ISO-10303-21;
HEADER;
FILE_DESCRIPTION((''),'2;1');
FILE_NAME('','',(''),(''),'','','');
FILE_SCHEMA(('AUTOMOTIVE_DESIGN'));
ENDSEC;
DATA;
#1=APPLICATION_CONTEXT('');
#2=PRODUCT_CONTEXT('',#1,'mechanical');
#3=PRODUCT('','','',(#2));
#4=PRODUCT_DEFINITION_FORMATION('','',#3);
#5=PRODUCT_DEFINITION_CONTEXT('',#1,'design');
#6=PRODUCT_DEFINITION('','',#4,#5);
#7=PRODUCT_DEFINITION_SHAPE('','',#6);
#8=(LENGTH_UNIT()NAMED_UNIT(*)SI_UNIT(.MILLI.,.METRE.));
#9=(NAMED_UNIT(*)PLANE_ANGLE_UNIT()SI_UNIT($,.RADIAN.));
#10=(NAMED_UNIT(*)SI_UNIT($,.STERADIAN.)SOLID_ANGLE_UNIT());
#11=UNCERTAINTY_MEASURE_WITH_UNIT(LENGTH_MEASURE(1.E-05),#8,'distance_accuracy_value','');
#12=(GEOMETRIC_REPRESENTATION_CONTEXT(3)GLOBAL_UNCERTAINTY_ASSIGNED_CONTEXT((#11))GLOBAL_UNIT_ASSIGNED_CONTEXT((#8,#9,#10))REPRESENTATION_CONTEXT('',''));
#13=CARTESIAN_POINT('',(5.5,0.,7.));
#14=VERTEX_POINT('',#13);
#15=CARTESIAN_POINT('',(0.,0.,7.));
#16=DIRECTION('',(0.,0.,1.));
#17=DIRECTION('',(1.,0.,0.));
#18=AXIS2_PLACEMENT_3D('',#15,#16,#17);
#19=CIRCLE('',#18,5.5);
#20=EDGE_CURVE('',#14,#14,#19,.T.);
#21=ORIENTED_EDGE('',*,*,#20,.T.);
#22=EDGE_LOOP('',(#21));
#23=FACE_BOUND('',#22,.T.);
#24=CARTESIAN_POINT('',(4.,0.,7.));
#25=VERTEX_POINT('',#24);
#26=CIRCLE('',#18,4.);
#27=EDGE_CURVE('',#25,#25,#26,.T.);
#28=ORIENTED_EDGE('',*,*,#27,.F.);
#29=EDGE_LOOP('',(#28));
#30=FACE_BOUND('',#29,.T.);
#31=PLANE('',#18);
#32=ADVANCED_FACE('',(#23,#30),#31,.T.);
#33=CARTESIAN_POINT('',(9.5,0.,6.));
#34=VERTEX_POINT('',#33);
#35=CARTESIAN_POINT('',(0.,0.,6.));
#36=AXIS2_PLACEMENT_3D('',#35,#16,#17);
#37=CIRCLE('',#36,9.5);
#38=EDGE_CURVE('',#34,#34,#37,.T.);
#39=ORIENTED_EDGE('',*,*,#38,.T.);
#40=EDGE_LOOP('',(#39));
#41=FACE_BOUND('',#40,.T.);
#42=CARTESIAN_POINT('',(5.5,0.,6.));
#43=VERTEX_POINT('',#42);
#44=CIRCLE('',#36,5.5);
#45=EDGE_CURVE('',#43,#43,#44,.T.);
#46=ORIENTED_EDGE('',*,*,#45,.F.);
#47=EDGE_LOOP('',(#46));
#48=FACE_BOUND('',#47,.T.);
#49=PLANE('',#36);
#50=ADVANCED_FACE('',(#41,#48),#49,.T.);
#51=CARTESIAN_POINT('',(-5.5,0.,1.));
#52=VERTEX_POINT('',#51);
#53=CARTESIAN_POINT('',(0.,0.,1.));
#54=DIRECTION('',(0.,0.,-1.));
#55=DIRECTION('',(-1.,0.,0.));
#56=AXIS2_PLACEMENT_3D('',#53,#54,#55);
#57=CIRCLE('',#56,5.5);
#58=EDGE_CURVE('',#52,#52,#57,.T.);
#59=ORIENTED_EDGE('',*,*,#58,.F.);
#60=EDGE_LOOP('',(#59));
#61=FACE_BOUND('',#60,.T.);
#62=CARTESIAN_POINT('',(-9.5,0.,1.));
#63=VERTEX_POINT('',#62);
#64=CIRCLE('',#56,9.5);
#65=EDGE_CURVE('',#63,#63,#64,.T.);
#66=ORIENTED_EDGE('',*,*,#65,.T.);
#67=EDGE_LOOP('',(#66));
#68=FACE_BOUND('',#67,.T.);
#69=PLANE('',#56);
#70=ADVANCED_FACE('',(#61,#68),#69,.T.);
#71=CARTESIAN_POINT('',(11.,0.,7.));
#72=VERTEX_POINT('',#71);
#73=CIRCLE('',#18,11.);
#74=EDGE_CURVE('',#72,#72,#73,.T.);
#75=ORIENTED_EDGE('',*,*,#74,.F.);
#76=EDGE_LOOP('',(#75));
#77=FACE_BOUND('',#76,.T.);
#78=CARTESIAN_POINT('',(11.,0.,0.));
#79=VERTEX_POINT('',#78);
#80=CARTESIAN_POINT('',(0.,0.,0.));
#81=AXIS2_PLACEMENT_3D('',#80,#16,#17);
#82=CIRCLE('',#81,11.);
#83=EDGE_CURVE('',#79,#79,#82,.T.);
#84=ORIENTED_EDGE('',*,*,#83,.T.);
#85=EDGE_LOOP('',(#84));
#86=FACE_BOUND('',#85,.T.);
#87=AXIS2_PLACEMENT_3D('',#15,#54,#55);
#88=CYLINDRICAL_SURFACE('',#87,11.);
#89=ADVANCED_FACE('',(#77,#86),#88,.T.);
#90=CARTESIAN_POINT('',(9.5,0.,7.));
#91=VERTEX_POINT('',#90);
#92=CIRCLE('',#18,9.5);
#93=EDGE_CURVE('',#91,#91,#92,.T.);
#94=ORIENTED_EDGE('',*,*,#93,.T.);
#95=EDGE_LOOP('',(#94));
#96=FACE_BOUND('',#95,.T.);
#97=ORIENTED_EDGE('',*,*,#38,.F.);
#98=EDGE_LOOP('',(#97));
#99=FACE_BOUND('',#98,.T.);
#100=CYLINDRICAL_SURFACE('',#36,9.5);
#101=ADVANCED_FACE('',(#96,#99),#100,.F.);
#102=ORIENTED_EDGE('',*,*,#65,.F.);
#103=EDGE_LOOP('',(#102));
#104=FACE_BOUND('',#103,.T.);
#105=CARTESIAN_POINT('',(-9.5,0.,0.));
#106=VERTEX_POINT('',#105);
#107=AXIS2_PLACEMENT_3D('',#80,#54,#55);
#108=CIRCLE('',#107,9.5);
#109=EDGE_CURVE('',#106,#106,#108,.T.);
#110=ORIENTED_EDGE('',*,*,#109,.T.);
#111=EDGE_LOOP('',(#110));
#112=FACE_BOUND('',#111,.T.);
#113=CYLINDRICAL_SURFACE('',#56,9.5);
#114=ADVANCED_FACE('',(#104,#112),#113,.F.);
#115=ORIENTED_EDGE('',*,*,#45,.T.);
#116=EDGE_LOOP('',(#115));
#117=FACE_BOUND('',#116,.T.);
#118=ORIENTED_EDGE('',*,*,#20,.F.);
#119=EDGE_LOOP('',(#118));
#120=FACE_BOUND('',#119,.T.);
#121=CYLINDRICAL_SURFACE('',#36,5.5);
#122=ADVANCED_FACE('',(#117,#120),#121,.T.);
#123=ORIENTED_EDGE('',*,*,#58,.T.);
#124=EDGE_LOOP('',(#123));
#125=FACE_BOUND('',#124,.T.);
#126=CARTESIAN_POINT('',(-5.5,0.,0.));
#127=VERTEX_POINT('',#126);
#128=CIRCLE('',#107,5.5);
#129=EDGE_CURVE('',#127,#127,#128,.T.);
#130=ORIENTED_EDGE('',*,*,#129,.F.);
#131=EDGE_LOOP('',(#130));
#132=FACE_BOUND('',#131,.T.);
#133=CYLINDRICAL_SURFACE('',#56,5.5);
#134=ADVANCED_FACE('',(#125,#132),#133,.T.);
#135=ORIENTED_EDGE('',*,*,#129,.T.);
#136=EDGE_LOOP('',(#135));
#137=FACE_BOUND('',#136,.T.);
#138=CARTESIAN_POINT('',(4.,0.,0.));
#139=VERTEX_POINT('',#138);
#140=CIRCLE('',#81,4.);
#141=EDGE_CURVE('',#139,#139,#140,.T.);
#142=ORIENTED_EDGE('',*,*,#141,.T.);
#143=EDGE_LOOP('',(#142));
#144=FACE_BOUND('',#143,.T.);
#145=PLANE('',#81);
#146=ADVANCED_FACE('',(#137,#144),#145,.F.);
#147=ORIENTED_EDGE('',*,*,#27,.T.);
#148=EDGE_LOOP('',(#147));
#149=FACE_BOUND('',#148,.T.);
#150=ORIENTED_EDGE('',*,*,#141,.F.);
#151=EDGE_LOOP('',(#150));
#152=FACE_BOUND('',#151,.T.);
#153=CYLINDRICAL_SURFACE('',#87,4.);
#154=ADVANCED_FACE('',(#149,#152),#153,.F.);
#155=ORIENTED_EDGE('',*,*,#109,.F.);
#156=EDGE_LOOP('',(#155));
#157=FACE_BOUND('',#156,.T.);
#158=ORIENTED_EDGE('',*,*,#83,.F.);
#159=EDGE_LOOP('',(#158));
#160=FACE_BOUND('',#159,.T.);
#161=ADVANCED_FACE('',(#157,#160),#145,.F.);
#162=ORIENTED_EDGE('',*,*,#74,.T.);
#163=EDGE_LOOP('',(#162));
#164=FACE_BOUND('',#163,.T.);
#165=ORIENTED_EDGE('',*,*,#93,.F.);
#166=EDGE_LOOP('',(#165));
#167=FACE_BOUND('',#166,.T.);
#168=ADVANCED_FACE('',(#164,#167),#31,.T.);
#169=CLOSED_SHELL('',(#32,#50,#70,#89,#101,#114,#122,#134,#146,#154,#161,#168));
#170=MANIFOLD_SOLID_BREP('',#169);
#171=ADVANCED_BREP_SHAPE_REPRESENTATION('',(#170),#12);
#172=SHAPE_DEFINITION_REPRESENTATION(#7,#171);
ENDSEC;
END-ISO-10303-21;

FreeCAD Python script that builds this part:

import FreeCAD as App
import Part
import Sketcher
from FreeCAD import Vector
Q = App.Units.Quantity

doc = App.newDocument("Part")
body = doc.addObject("PartDesign::Body", "Body")

# Sketch on XY plane
sketch1 = doc.addObject("Sketcher::SketchObject", "Sketch")
body.addObject(sketch1)
sketch1.AttachmentSupport = (doc.XY_Plane, [""])
sketch1.MapMode = "FlatFace"
sketch1.addGeometry([
    Part.Circle(Vector(0, 0, 0), Vector(0, 0, 1), 11),
    Part.Circle(Vector(0, 0, 0), Vector(0, 0, 1), 4),
], False)
sketch1.addConstraint([
    Sketcher.Constraint("Coincident", 0, 3, -1, 1),
    Sketcher.Constraint("Coincident", 1, 3, -1, 1),
    Sketcher.Constraint("Diameter", 0, Q("22 mm")),
    Sketcher.Constraint("Diameter", 1, Q("8 mm")),
])
pad1 = doc.addObject("PartDesign::Pad", "Pad")
body.addObject(pad1)
pad1.Profile = sketch1
pad1.Length = 7

# Sketch on XY plane
sketch2 = doc.addObject("Sketcher::SketchObject", "Sketch001")
body.addObject(sketch2)
sketch2.AttachmentSupport = (doc.XY_Plane, [""])
sketch2.MapMode = "FlatFace"
sketch2.AttachmentOffset = App.Placement(Vector(0, 0, 7), App.Rotation())
sketch2.addGeometry([
    Part.Circle(Vector(0, 0, 0), Vector(0, 0, 1), 10),
    Part.Circle(Vector(0, 0, 0), Vector(0, 0, 1), 6),
], False)
sketch2.addConstraint([
    Sketcher.Constraint("Coincident", 0, 3, -1, 1),
    Sketcher.Constraint("Coincident", 1, 3, -1, 1),
    Sketcher.Constraint("Diameter", 0, Q("19 mm")),
    Sketcher.Constraint("Diameter", 1, Q("11 mm")),
])
pocket1 = doc.addObject("PartDesign::Pocket", "Pocket")
body.addObject(pocket1)
pocket1.Profile = sketch2
pocket1.Length = 1

# Sketch on XY plane
sketch3 = doc.addObject("Sketcher::SketchObject", "Sketch002")
body.addObject(sketch3)
sketch3.AttachmentSupport = (doc.XY_Plane, [""])
sketch3.MapMode = "FlatFace"
sketch3.addGeometry([
    Part.Circle(Vector(0, 0, 0), Vector(0, 0, 1), 10),
    Part.Circle(Vector(0, 0, 0), Vector(0, 0, 1), 6),
], False)
sketch3.addConstraint([
    Sketcher.Constraint("Coincident", 0, 3, -1, 1),
    Sketcher.Constraint("Coincident", 1, 3, -1, 1),
    Sketcher.Constraint("Diameter", 0, Q("19 mm")),
    Sketcher.Constraint("Diameter", 1, Q("11 mm")),
])
pocket2 = doc.addObject("PartDesign::Pocket", "Pocket001")
body.addObject(pocket2)
pocket2.Profile = sketch3
pocket2.Length = 1
pocket2.Reversed = True

doc.recompute()
